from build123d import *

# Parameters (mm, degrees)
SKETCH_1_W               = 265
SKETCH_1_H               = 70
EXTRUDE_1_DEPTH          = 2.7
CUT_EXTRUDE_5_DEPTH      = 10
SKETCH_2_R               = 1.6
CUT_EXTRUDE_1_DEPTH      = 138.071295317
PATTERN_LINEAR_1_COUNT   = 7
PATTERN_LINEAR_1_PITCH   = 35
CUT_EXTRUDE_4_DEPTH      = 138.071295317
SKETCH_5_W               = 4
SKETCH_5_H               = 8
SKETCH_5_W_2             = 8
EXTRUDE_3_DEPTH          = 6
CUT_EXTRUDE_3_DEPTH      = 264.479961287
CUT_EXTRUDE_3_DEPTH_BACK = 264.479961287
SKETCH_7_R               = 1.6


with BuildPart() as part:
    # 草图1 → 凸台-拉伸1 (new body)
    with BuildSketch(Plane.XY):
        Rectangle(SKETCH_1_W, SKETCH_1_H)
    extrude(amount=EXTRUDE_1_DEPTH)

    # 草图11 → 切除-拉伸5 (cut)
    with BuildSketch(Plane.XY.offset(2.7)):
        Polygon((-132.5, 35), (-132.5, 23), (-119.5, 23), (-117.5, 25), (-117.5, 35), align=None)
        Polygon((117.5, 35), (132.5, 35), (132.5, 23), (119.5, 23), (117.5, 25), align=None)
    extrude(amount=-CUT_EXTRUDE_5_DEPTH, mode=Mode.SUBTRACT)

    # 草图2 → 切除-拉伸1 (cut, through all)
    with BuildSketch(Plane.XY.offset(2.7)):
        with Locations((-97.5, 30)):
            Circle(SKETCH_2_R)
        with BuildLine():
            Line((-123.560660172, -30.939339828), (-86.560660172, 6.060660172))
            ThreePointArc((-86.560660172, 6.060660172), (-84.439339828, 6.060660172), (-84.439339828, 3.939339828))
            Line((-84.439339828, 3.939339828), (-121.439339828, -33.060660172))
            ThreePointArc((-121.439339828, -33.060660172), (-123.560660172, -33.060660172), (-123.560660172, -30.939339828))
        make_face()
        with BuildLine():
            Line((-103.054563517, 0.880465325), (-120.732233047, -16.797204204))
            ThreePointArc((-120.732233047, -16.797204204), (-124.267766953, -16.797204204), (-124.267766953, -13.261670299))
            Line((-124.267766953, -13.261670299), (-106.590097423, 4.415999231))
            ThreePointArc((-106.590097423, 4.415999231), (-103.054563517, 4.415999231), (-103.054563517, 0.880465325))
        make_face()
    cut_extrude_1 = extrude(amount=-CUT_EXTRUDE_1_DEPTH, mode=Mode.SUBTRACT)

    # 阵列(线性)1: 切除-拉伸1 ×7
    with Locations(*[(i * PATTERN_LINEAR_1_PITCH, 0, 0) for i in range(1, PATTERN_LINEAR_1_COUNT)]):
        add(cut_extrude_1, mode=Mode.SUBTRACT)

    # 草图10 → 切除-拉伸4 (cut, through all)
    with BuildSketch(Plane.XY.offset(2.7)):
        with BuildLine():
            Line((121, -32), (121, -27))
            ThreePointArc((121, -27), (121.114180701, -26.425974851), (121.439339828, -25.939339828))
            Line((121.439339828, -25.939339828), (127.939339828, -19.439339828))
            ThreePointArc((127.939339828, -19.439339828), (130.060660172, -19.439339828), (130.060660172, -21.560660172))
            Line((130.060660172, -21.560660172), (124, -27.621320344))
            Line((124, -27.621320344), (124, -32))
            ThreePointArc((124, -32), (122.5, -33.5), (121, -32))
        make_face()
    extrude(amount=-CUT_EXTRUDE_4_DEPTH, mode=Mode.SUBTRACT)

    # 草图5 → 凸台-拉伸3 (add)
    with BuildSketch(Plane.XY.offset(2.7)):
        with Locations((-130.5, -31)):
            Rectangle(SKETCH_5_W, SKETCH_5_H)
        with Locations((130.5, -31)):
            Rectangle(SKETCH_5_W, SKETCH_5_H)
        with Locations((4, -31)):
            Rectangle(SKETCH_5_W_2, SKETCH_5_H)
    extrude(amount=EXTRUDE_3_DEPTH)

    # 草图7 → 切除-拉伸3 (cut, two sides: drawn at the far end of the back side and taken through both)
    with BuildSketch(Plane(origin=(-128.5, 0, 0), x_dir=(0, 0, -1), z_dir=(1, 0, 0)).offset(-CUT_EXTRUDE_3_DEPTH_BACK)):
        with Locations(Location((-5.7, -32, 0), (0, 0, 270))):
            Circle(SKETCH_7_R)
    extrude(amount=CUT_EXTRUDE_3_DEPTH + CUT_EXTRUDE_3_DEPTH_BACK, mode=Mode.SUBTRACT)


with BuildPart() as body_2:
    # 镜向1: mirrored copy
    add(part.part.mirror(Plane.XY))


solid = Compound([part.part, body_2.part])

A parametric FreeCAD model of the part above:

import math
import FreeCAD as App
import Part
import Sketcher

V = App.Vector
Q = App.Units.Quantity

doc = App.newDocument("Part")
body = doc.addObject("PartDesign::Body", "Body")

# Sketch on XY plane
sketch1 = body.newObject("Sketcher::SketchObject", "Sketch")
sketch1.AttachmentSupport = (doc.getObject("XY_Plane"), [""])
sketch1.MapMode = "FlatFace"
sketch1.addGeometry(Part.LineSegment(V(-132, 35, 0), V(-132, -35, 0)), False)
sketch1.addGeometry(Part.LineSegment(V(-132, -35, 0), V(132, -35, 0)), False)
sketch1.addGeometry(Part.LineSegment(V(132, -35, 0), V(132, 35, 0)), False)
sketch1.addGeometry(Part.LineSegment(V(132, 35, 0), V(-132, 35, 0)), False)
sketch1.addConstraint(Sketcher.Constraint("Coincident", 0, 2, 1, 1))
sketch1.addConstraint(Sketcher.Constraint("Coincident", 1, 2, 2, 1))
sketch1.addConstraint(Sketcher.Constraint("Coincident", 2, 2, 3, 1))
sketch1.addConstraint(Sketcher.Constraint("Coincident", 3, 2, 0, 1))
sketch1.addConstraint(Sketcher.Constraint("Vertical", 0))
sketch1.addConstraint(Sketcher.Constraint("Horizontal", 1))
sketch1.addConstraint(Sketcher.Constraint("Vertical", 2))
sketch1.addConstraint(Sketcher.Constraint("Horizontal", 3))
sketch1.addConstraint(Sketcher.Constraint("Symmetric", 0, 2, 2, 2, -1, 1))
sketch1.addConstraint(Sketcher.Constraint("DistanceX", 1, 1, 1, 2, Q("265 mm")))
sketch1.addConstraint(Sketcher.Constraint("DistanceY", 0, 2, 0, 1, Q("70 mm")))
pad1 = body.newObject("PartDesign::Pad", "Pad")
pad1.Profile = sketch1
pad1.Length = 2.7

# Sketch on XY plane
sketch2 = body.newObject("Sketcher::SketchObject", "Sketch001")
sketch2.AttachmentSupport = (doc.getObject("XY_Plane"), [""])
sketch2.MapMode = "FlatFace"
sketch2.AttachmentOffset = App.Placement(V(0, 0, 2.7), App.Rotation())
sketch2.addGeometry(Part.LineSegment(V(-132.5, 35, 0), V(-132.5, 23, 0)), False)
sketch2.addGeometry(Part.LineSegment(V(-132.5, 23, 0), V(-119.5, 23, 0)), False)
sketch2.addGeometry(Part.LineSegment(V(-119.5, 23, 0), V(-117.5, 25, 0)), False)
sketch2.addGeometry(Part.LineSegment(V(-117.5, 25, 0), V(-117.5, 35, 0)), False)
sketch2.addGeometry(Part.LineSegment(V(-117.5, 35, 0), V(-132.5, 35, 0)), False)
sketch2.addGeometry(Part.LineSegment(V(132.5, 35, 0), V(117.5, 35, 0)), False)
sketch2.addGeometry(Part.LineSegment(V(117.5, 35, 0), V(117.5, 25, 0)), False)
sketch2.addGeometry(Part.LineSegment(V(117.5, 25, 0), V(119.5, 23, 0)), False)
sketch2.addGeometry(Part.LineSegment(V(119.5, 23, 0), V(132.5, 23, 0)), False)
sketch2.addGeometry(Part.LineSegment(V(132.5, 23, 0), V(132.5, 35, 0)), False)
sketch2.addConstraint(Sketcher.Constraint("Coincident", 0, 2, 1, 1))
sketch2.addConstraint(Sketcher.Constraint("Coincident", 1, 2, 2, 1))
sketch2.addConstraint(Sketcher.Constraint("Coincident", 2, 2, 3, 1))
sketch2.addConstraint(Sketcher.Constraint("Coincident", 3, 2, 4, 1))
sketch2.addConstraint(Sketcher.Constraint("Coincident", 4, 2, 0, 1))
sketch2.addConstraint(Sketcher.Constraint("Coincident", 5, 2, 6, 1))
sketch2.addConstraint(Sketcher.Constraint("Coincident", 6, 2, 7, 1))
sketch2.addConstraint(Sketcher.Constraint("Coincident", 7, 2, 8, 1))
sketch2.addConstraint(Sketcher.Constraint("Coincident", 8, 2, 9, 1))
sketch2.addConstraint(Sketcher.Constraint("Coincident", 9, 2, 5, 1))
sketch2.addConstraint(Sketcher.Constraint("Vertical", 0))
sketch2.addConstraint(Sketcher.Constraint("Horizontal", 1))
sketch2.addConstraint(Sketcher.Constraint("Vertical", 3))
sketch2.addConstraint(Sketcher.Constraint("Horizontal", 4))
sketch2.addConstraint(Sketcher.Constraint("Horizontal", 5))
sketch2.addConstraint(Sketcher.Constraint("Vertical", 6))
sketch2.addConstraint(Sketcher.Constraint("Horizontal", 8))
sketch2.addConstraint(Sketcher.Constraint("Vertical", 9))
sketch2.addConstraint(Sketcher.Constraint("Symmetric", 3, 2, 5, 2, -2))
sketch2.addConstraint(Sketcher.Constraint("Symmetric", 1, 2, 7, 2, -2))
sketch2.addConstraint(Sketcher.Constraint("Perpendicular", 2, 7))
sketch2.addConstraint(Sketcher.Constraint("Horizontal", 2, 2, 6, 2))
sketch2.addConstraint(Sketcher.Constraint("Equal", 4, 5))
sketch2.addConstraint(Sketcher.Constraint("DistanceX", 1, 1, 1, 2, Q("13 mm")))
sketch2.addConstraint(Sketcher.Constraint("DistanceX", 4, 2, 4, 1, Q("15 mm")))
sketch2.addConstraint(Sketcher.Constraint("DistanceY", 0, 2, 0, 1, Q("12 mm")))
sketch2.addConstraint(Sketcher.Constraint("DistanceY", -1, 1, 0, 2, Q("23 mm")))
sketch2.addConstraint(Sketcher.Constraint("DistanceX", 3, 2, 5, 2, Q("235 mm")))
pocket1 = body.newObject("PartDesign::Pocket", "Pocket")
pocket1.Profile = sketch2
pocket1.Length = 10

# Sketch on XY plane
sketch3 = body.newObject("Sketcher::SketchObject", "Sketch002")
sketch3.AttachmentSupport = (doc.getObject("XY_Plane"), [""])
sketch3.MapMode = "FlatFace"
sketch3.AttachmentOffset = App.Placement(V(0, 0, 2.7), App.Rotation())
sketch3.addGeometry(Part.Circle(V(-97.5, 30, 0), V(0, 0, 1), 1.6), False)
sketch3.addGeometry(Part.LineSegment(V(-86.6, 6.1, 0), V(-123.6, -30.9, 0)), False)
sketch3.addGeometry(Part.ArcOfCircle(Part.Circle(V(-122.5, -32, 0), V(0, 0, 1), 1.5), math.radians(135), math.radians(315)), False)
sketch3.addGeometry(Part.LineSegment(V(-121.4, -33.1, 0), V(-84.4, 3.9, 0)), False)
sketch3.addGeometry(Part.ArcOfCircle(Part.Circle(V(-85.5, 5, 0), V(0, 0, 1), 1.5), math.radians(-45), math.radians(135)), False)
sketch3.addGeometry(Part.LineSegment(V(-120.7, -16.8, 0), V(-103.1, 0.9, 0)), False)
sketch3.addGeometry(Part.ArcOfCircle(Part.Circle(V(-104.8, 2.6, 0), V(0, 0, 1), 2.5), math.radians(-45), math.radians(135)), False)
sketch3.addGeometry(Part.LineSegment(V(-106.6, 4.4, 0), V(-124.3, -13.3, 0)), False)
sketch3.addGeometry(Part.ArcOfCircle(Part.Circle(V(-122.5, -15, 0), V(0, 0, 1), 2.5), math.radians(135), math.radians(315)), False)
sketch3.addConstraint(Sketcher.Constraint("Tangent", 1, 2, 2, 1))
sketch3.addConstraint(Sketcher.Constraint("Tangent", 2, 2, 3, 1))
sketch3.addConstraint(Sketcher.Constraint("Tangent", 3, 2, 4, 1))
sketch3.addConstraint(Sketcher.Constraint("Tangent", 4, 2, 1, 1))
sketch3.addConstraint(Sketcher.Constraint("Tangent", 5, 2, 6, 1))
sketch3.addConstraint(Sketcher.Constraint("Tangent", 6, 2, 7, 1))
sketch3.addConstraint(Sketcher.Constraint("Tangent", 7, 2, 8, 1))
sketch3.addConstraint(Sketcher.Constraint("Tangent", 8, 2, 5, 1))
sketch3.addConstraint(Sketcher.Constraint("Equal", 2, 4))
sketch3.addConstraint(Sketcher.Constraint("Equal", 6, 8))
sketch3.addConstraint(Sketcher.Constraint("Parallel", 3, 5))
sketch3.addConstraint(Sketcher.Constraint("Vertical", 2, 3, 8, 3))
sketch3.addConstraint(Sketcher.Constraint("Diameter", 0, Q("3.2 mm")))
sketch3.addConstraint(Sketcher.Constraint("Radius", 2, Q("1.5 mm")))
sketch3.addConstraint(Sketcher.Constraint("Radius", 6, Q("2.5 mm")))
sketch3.addConstraint(Sketcher.Constraint("Angle", 1, Q("-135 deg")))
sketch3.addConstraint(Sketcher.Constraint("Distance", 5, Q("25 mm")))
sketch3.addConstraint(Sketcher.Constraint("DistanceY", -1, 1, 0, 3, Q("30 mm")))
sketch3.addConstraint(Sketcher.Constraint("DistanceY", 2, 3, -1, 1, Q("32 mm")))
sketch3.addConstraint(Sketcher.Constraint("DistanceY", -1, 1, 4, 3, Q("5 mm")))
sketch3.addConstraint(Sketcher.Constraint("DistanceX", 2, 3, 0, 3, Q("25 mm")))
sketch3.addConstraint(Sketcher.Constraint("DistanceX", 0, 3, -1, 1, Q("97.5 mm")))
sketch3.addConstraint(Sketcher.Constraint("DistanceY", -1, 1, 6, 2, Q("4.415999 mm")))
pocket2 = body.newObject("PartDesign::Pocket", "Pocket001")
pocket2.Profile = sketch3
pocket2.Type = "ThroughAll"
doc.recompute()

linearpattern = body.newObject("PartDesign::LinearPattern", "LinearPattern")
linearpattern.Originals = [pocket2]
linearpattern.Direction = (doc.getObject("X_Axis"), [""])
linearpattern.Mode = "offset"
linearpattern.Offset = 35
linearpattern.Occurrences = 7
body.Tip = linearpattern

# Sketch on XY plane
sketch4 = body.newObject("Sketcher::SketchObject", "Sketch003")
sketch4.AttachmentSupport = (doc.getObject("XY_Plane"), [""])
sketch4.MapMode = "FlatFace"
sketch4.AttachmentOffset = App.Placement(V(0, 0, 2.7), App.Rotation())
sketch4.addGeometry(Part.LineSegment(V(121, -27, 0), V(121, -32, 0)), False)
sketch4.addGeometry(Part.ArcOfCircle(Part.Circle(V(122.5, -32, 0), V(0, 0, 1), 1.5), math.radians(180), math.radians(360)), False)
sketch4.addGeometry(Part.LineSegment(V(124, -32, 0), V(124, -27.6, 0)), False)
sketch4.addGeometry(Part.LineSegment(V(124, -27.6, 0), V(130.1, -21.6, 0)), False)
sketch4.addGeometry(Part.ArcOfCircle(Part.Circle(V(129, -20.5, 0), V(0, 0, 1), 1.5), math.radians(-45), math.radians(135)), False)
sketch4.addGeometry(Part.LineSegment(V(127.9, -19.4, 0), V(121.4, -25.9, 0)), False)
sketch4.addGeometry(Part.ArcOfCircle(Part.Circle(V(122.5, -27, 0), V(0, 0, 1), 1.5), math.radians(135), math.radians(180)), False)
sketch4.addConstraint(Sketcher.Constraint("Tangent", 0, 2, 1, 1))
sketch4.addConstraint(Sketcher.Constraint("Tangent", 1, 2, 2, 1))
sketch4.addConstraint(Sketcher.Constraint("Coincident", 2, 2, 3, 1))
sketch4.addConstraint(Sketcher.Constraint("Tangent", 3, 2, 4, 1))
sketch4.addConstraint(Sketcher.Constraint("Tangent", 4, 2, 5, 1))
sketch4.addConstraint(Sketcher.Constraint("Tangent", 5, 2, 6, 1))
sketch4.addConstraint(Sketcher.Constraint("Tangent", 6, 2, 0, 1))
sketch4.addConstraint(Sketcher.Constraint("Vertical", 0))
sketch4.addConstraint(Sketcher.Constraint("Vertical", 2))
sketch4.addConstraint(Sketcher.Constraint("Equal", 1, 4))
sketch4.addConstraint(Sketcher.Constraint("Equal", 4, 6))
sketch4.addConstraint(Sketcher.Constraint("Parallel", 3, 5))
sketch4.addConstraint(Sketcher.Constraint("Radius", 1, Q("1.5 mm")))
sketch4.addConstraint(Sketcher.Constraint("DistanceY", 0, 2, 0, 1, Q("5 mm")))
sketch4.addConstraint(Sketcher.Constraint("Angle", 3, Q("45 deg")))
sketch4.addConstraint(Sketcher.Constraint("DistanceY", 1, 3, -1, 1, Q("32 mm")))
sketch4.addConstraint(Sketcher.Constraint("DistanceX", -1, 1, 4, 3, Q("129 mm")))
sketch4.addConstraint(Sketcher.Constraint("DistanceX", -1, 1, 0, 2, Q("121 mm")))
pocket3 = body.newObject("PartDesign::Pocket", "Pocket002")
pocket3.Profile = sketch4
pocket3.Type = "ThroughAll"

# Sketch on XY plane
sketch5 = body.newObject("Sketcher::SketchObject", "Sketch004")
sketch5.AttachmentSupport = (doc.getObject("XY_Plane"), [""])
sketch5.MapMode = "FlatFace"
sketch5.AttachmentOffset = App.Placement(V(0, 0, 2.7), App.Rotation())
sketch5.addGeometry(Part.LineSegment(V(-132.5, -27, 0), V(-132.5, -35, 0)), False)
sketch5.addGeometry(Part.LineSegment(V(-132.5, -35, 0), V(-128.5, -35, 0)), False)
sketch5.addGeometry(Part.LineSegment(V(-128.5, -35, 0), V(-128.5, -27, 0)), False)
sketch5.addGeometry(Part.LineSegment(V(-128.5, -27, 0), V(-132.5, -27, 0)), False)
sketch5.addGeometry(Part.LineSegment(V(128.5, -27, 0), V(128.5, -35, 0)), False)
sketch5.addGeometry(Part.LineSegment(V(128.5, -35, 0), V(132.5, -35, 0)), False)
sketch5.addGeometry(Part.LineSegment(V(132.5, -35, 0), V(132.5, -27, 0)), False)
sketch5.addGeometry(Part.LineSegment(V(132.5, -27, 0), V(128.5, -27, 0)), False)
sketch5.addGeometry(Part.LineSegment(V(0, -27, 0), V(0, -35, 0)), False)
sketch5.addGeometry(Part.LineSegment(V(0, -35, 0), V(8, -35, 0)), False)
sketch5.addGeometry(Part.LineSegment(V(8, -35, 0), V(8, -27, 0)), False)
sketch5.addGeometry(Part.LineSegment(V(8, -27, 0), V(0, -27, 0)), False)
sketch5.addConstraint(Sketcher.Constraint("Coincident", 0, 2, 1, 1))
sketch5.addConstraint(Sketcher.Constraint("Coincident", 1, 2, 2, 1))
sketch5.addConstraint(Sketcher.Constraint("Coincident", 2, 2, 3, 1))
sketch5.addConstraint(Sketcher.Constraint("Coincident", 3, 2, 0, 1))
sketch5.addConstraint(Sketcher.Constraint("Coincident", 4, 2, 5, 1))
sketch5.addConstraint(Sketcher.Constraint("Coincident", 5, 2, 6, 1))
sketch5.addConstraint(Sketcher.Constraint("Coincident", 6, 2, 7, 1))
sketch5.addConstraint(Sketcher.Constraint("Coincident", 7, 2, 4, 1))
sketch5.addConstraint(Sketcher.Constraint("Coincident", 8, 2, 9, 1))
sketch5.addConstraint(Sketcher.Constraint("Coincident", 9, 2, 10, 1))
sketch5.addConstraint(Sketcher.Constraint("Coincident", 10, 2, 11, 1))
sketch5.addConstraint(Sketcher.Constraint("Coincident", 11, 2, 8, 1))
sketch5.addConstraint(Sketcher.Constraint("Vertical", 0))
sketch5.addConstraint(Sketcher.Constraint("Horizontal", 1))
sketch5.addConstraint(Sketcher.Constraint("Vertical", 2))
sketch5.addConstraint(Sketcher.Constraint("Horizontal", 3))
sketch5.addConstraint(Sketcher.Constraint("Vertical", 4))
sketch5.addConstraint(Sketcher.Constraint("Horizontal", 5))
sketch5.addConstraint(Sketcher.Constraint("Vertical", 6))
sketch5.addConstraint(Sketcher.Constraint("Horizontal", 7))
sketch5.addConstraint(Sketcher.Constraint("Vertical", 8))
sketch5.addConstraint(Sketcher.Constraint("Horizontal", 9))
sketch5.addConstraint(Sketcher.Constraint("Vertical", 10))
sketch5.addConstraint(Sketcher.Constraint("Horizontal", 11))
sketch5.addConstraint(Sketcher.Constraint("Symmetric", 1, 2, 4, 2, -2))
sketch5.addConstraint(Sketcher.Constraint("Symmetric", 3, 2, 6, 2, -2))
sketch5.addConstraint(Sketcher.Constraint("PointOnObject", 8, 2, -2))
sketch5.addConstraint(Sketcher.Constraint("Horizontal", 5, 2, 8, 2))
sketch5.addConstraint(Sketcher.Constraint("Horizontal", 7, 2, 10, 2))
sketch5.addConstraint(Sketcher.Constraint("Equal", 11, 0))
sketch5.addConstraint(Sketcher.Constraint("DistanceX", 1, 1, 1, 2, Q("4 mm")))
sketch5.addConstraint(Sketcher.Constraint("DistanceX", 9, 1, 9, 2, Q("8 mm")))
sketch5.addConstraint(Sketcher.Constraint("DistanceY", 0, 2, -1, 1, Q("35 mm")))
sketch5.addConstraint(Sketcher.Constraint("DistanceX", 1, 2, 4, 2, Q("257 mm")))
pad2 = body.newObject("PartDesign::Pad", "Pad001")
pad2.Profile = sketch5
pad2.Length = 6

# Sketch on YZ plane
sketch6 = body.newObject("Sketcher::SketchObject", "Sketch005")
sketch6.AttachmentSupport = (doc.getObject("YZ_Plane"), [""])
sketch6.MapMode = "FlatFace"
sketch6.AttachmentOffset = App.Placement(V(0, 0, -128.5), App.Rotation())
sketch6.addGeometry(Part.Circle(V(-32, 5.7, 0), V(0, 0, 1), 1.6), False)
sketch6.addConstraint(Sketcher.Constraint("Diameter", 0, Q("3.2 mm")))
sketch6.addConstraint(Sketcher.Constraint("DistanceX", 0, 3, -1, 1, Q("32 mm")))
sketch6.addConstraint(Sketcher.Constraint("DistanceY", -1, 1, 0, 3, Q("5.7 mm")))
pocket4 = body.newObject("PartDesign::Pocket", "Pocket003")
pocket4.Profile = sketch6
pocket4.Type = "ThroughAll"
pocket4.Midplane = True
body2 = doc.addObject("PartDesign::Body", "Body001")
doc.recompute()

mirroring = doc.addObject("Part::Mirroring", "Mirroring")
mirroring.Source = body
mirroring.Base = V(0, 0, 0)
mirroring.Normal = V(0, 0, 1)
body2.BaseFeature = mirroring
doc.recompute()
mirroring.Visibility = False

doc.recompute()
